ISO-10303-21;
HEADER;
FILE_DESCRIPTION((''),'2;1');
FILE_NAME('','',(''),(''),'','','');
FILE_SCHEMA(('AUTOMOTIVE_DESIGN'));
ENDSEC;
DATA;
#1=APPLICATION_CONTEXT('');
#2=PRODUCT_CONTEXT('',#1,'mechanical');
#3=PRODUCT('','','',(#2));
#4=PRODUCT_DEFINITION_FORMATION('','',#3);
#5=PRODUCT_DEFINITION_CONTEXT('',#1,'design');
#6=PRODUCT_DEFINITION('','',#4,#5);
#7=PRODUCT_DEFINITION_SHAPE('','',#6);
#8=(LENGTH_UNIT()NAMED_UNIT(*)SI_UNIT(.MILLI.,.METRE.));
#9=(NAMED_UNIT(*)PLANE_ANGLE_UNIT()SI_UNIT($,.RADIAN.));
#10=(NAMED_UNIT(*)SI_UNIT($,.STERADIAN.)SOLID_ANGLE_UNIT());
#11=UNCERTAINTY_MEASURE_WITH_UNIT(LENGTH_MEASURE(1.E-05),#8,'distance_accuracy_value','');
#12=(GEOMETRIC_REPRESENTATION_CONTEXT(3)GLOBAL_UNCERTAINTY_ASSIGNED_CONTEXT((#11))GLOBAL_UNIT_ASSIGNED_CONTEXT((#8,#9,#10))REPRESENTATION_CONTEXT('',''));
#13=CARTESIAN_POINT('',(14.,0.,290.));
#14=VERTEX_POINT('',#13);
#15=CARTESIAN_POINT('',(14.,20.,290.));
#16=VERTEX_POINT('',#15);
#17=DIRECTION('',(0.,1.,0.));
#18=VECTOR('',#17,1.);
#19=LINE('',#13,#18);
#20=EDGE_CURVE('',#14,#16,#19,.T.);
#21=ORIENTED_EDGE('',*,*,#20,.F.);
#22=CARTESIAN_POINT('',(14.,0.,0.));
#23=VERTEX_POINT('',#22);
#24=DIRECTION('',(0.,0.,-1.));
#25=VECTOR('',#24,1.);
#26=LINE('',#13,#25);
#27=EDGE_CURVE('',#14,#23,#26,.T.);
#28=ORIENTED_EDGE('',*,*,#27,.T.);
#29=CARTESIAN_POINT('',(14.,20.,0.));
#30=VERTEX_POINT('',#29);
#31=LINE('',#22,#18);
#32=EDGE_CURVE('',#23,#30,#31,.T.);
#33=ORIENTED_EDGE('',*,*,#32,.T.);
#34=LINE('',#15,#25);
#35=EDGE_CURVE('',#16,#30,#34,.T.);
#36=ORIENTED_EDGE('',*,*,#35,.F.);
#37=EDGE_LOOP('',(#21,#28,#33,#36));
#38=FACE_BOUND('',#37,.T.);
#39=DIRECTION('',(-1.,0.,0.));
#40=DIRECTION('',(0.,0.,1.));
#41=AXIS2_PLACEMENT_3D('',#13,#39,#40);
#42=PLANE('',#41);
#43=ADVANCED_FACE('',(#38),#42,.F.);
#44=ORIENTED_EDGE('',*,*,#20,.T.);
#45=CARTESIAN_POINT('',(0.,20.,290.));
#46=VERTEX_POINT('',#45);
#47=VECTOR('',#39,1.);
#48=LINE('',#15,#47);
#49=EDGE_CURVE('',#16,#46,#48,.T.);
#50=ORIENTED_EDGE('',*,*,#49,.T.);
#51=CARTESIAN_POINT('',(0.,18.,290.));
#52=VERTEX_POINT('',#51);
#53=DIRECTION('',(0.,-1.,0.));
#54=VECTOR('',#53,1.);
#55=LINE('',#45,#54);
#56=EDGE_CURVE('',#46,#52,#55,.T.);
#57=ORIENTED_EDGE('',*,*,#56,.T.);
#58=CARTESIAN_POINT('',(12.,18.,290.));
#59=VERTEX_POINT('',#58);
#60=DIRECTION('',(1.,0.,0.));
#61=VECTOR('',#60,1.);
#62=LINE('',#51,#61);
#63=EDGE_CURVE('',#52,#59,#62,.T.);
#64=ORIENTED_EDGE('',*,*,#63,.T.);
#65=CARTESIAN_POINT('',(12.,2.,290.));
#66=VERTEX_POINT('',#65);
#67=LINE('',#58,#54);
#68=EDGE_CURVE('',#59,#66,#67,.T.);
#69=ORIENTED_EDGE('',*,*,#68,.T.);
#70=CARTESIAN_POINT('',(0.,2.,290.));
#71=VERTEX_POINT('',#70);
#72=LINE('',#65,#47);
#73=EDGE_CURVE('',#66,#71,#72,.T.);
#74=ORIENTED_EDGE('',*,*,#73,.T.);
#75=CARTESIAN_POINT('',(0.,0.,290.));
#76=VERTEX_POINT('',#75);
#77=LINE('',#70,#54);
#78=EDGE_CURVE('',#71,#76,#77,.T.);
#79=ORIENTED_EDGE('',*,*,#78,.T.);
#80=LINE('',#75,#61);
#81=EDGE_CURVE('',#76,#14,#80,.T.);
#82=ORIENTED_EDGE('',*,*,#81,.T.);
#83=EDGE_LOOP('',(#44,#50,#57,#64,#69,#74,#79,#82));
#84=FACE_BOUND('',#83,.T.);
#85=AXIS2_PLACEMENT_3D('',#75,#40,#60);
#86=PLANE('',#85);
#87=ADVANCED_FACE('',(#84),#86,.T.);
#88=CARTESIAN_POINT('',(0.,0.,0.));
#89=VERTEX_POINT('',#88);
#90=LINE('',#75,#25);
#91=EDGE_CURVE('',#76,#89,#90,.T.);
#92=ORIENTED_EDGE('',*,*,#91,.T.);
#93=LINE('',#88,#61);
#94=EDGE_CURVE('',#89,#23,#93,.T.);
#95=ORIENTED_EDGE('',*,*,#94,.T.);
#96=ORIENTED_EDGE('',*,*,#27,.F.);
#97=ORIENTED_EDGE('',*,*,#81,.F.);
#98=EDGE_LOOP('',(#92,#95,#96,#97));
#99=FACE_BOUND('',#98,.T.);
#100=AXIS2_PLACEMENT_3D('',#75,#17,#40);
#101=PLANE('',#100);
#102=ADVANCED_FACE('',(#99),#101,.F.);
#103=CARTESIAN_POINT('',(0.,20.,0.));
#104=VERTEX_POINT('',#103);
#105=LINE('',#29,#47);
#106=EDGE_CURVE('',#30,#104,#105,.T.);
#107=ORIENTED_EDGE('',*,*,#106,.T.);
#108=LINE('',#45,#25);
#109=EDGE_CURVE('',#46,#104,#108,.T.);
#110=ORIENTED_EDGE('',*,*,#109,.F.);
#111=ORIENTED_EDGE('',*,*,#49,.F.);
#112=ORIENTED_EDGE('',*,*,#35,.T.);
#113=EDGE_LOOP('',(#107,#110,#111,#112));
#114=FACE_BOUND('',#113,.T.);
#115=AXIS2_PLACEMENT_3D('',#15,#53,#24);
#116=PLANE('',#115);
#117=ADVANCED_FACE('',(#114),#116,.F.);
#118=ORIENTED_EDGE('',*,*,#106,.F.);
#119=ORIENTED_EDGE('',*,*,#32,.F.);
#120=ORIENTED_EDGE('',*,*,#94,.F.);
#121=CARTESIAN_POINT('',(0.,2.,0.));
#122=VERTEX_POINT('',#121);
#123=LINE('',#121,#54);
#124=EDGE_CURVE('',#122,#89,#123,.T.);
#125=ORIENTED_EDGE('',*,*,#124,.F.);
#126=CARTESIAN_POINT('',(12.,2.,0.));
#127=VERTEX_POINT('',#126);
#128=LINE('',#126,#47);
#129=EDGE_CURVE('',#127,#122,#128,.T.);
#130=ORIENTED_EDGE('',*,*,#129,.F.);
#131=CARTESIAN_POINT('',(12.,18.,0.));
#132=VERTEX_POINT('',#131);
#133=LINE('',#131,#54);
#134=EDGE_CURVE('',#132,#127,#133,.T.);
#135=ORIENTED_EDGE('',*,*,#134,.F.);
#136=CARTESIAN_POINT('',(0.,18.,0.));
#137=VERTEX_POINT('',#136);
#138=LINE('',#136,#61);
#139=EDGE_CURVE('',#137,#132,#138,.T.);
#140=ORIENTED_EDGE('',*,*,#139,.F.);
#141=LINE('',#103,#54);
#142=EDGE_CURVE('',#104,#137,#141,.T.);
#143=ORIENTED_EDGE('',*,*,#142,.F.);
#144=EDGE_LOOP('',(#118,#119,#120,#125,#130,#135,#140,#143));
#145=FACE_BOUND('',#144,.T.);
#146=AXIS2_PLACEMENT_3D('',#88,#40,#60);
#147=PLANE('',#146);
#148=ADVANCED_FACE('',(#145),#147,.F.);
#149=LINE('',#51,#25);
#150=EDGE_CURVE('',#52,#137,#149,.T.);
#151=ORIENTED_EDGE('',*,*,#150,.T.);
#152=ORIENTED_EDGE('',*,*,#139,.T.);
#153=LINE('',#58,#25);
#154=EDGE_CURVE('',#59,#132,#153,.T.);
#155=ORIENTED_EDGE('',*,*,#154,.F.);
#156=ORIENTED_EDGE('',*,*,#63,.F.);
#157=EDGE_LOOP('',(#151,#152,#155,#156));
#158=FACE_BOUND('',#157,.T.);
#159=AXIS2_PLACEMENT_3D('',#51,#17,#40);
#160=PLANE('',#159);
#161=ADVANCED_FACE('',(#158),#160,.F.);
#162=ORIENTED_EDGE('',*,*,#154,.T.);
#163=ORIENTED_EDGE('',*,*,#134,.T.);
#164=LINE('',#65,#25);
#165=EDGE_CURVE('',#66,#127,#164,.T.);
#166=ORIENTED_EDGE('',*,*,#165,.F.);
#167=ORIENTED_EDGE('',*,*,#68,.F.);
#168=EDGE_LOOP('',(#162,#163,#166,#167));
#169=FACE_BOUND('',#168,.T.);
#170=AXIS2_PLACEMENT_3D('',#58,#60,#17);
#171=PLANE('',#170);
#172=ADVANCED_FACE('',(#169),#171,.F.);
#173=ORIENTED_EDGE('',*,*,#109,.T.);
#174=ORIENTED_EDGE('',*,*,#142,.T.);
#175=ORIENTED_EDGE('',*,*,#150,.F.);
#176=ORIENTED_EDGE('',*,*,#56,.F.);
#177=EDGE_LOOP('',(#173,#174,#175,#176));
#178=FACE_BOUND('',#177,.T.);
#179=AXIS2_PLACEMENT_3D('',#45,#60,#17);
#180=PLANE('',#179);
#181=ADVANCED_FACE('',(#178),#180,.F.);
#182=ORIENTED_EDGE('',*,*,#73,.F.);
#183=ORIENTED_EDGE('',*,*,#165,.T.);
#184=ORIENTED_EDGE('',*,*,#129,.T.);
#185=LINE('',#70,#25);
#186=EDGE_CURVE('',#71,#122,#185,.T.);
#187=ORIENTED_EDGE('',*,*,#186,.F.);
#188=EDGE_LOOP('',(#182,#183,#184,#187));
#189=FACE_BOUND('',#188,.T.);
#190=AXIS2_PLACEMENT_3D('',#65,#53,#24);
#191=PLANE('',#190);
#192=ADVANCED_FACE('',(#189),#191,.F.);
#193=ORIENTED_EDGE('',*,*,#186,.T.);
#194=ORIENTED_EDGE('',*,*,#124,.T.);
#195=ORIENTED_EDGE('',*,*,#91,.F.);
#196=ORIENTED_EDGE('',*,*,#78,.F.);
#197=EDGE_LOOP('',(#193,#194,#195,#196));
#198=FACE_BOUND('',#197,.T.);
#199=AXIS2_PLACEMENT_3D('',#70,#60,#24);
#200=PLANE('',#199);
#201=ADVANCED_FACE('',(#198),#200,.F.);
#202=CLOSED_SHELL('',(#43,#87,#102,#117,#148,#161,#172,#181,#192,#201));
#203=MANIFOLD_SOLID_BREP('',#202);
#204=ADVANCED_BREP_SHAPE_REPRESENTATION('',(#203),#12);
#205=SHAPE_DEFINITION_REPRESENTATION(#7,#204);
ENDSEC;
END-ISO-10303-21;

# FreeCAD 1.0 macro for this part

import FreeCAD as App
import Part
import Sketcher
Q = App.Units.Quantity

doc = App.newDocument("Part")
body = doc.addObject("PartDesign::Body", "Body")

# Sketch on XY plane
sketch1 = body.newObject("Sketcher::SketchObject", "Sketch")
sketch1.AttachmentSupport = (doc.getObject("XY_Plane"), [""])
sketch1.MapMode = "FlatFace"
sketch1.addGeometry([
    Part.LineSegment(App.Vector(0, 0, 0), App.Vector(14, 0, 0)),  # 0
    Part.LineSegment(App.Vector(14, 0, 0), App.Vector(14, 20, 0)),  # 1
    Part.LineSegment(App.Vector(14, 20, 0), App.Vector(0, 20, 0)),  # 2
    Part.LineSegment(App.Vector(0, 20, 0), App.Vector(0, 18, 0)),  # 3
    Part.LineSegment(App.Vector(0, 18, 0), App.Vector(12, 18, 0)),  # 4
    Part.LineSegment(App.Vector(12, 18, 0), App.Vector(12, 2, 0)),  # 5
    Part.LineSegment(App.Vector(12, 2, 0), App.Vector(0, 2, 0)),  # 6
    Part.LineSegment(App.Vector(0, 2, 0), App.Vector(0, 0, 0)),  # 7
], False)
sketch1.addConstraint([
    Sketcher.Constraint("Coincident", 0, 2, 1, 1),
    Sketcher.Constraint("Coincident", 1, 2, 2, 1),
    Sketcher.Constraint("Coincident", 2, 2, 3, 1),
    Sketcher.Constraint("Coincident", 3, 2, 4, 1),
    Sketcher.Constraint("Coincident", 4, 2, 5, 1),
    Sketcher.Constraint("Coincident", 5, 2, 6, 1),
    Sketcher.Constraint("Coincident", 6, 2, 7, 1),
    Sketcher.Constraint("Coincident", 7, 2, 0, 1),
    Sketcher.Constraint("Horizontal", 0),
    Sketcher.Constraint("Vertical", 1),
    Sketcher.Constraint("Horizontal", 2),
    Sketcher.Constraint("Vertical", 3),
    Sketcher.Constraint("Horizontal", 4),
    Sketcher.Constraint("Vertical", 5),
    Sketcher.Constraint("Horizontal", 6),
    Sketcher.Constraint("Vertical", 7),
    Sketcher.Constraint("Coincident", 7, 2, -1, 1),
    Sketcher.Constraint("PointOnObject", 2, 2, -2),
    Sketcher.Constraint("Equal", 3, 7),
    Sketcher.Constraint("DistanceX", 0, 1, 0, 2, Q("14 mm")),
    Sketcher.Constraint("DistanceX", 4, 1, 4, 2, Q("12 mm")),
    Sketcher.Constraint("DistanceY", 1, 1, 1, 2, Q("20 mm")),
    Sketcher.Constraint("DistanceY", 3, 2, 3, 1, Q("2 mm")),
])
pad1 = body.newObject("PartDesign::Pad", "Pad")
pad1.Profile = sketch1
pad1.Length = 290

doc.recompute()
